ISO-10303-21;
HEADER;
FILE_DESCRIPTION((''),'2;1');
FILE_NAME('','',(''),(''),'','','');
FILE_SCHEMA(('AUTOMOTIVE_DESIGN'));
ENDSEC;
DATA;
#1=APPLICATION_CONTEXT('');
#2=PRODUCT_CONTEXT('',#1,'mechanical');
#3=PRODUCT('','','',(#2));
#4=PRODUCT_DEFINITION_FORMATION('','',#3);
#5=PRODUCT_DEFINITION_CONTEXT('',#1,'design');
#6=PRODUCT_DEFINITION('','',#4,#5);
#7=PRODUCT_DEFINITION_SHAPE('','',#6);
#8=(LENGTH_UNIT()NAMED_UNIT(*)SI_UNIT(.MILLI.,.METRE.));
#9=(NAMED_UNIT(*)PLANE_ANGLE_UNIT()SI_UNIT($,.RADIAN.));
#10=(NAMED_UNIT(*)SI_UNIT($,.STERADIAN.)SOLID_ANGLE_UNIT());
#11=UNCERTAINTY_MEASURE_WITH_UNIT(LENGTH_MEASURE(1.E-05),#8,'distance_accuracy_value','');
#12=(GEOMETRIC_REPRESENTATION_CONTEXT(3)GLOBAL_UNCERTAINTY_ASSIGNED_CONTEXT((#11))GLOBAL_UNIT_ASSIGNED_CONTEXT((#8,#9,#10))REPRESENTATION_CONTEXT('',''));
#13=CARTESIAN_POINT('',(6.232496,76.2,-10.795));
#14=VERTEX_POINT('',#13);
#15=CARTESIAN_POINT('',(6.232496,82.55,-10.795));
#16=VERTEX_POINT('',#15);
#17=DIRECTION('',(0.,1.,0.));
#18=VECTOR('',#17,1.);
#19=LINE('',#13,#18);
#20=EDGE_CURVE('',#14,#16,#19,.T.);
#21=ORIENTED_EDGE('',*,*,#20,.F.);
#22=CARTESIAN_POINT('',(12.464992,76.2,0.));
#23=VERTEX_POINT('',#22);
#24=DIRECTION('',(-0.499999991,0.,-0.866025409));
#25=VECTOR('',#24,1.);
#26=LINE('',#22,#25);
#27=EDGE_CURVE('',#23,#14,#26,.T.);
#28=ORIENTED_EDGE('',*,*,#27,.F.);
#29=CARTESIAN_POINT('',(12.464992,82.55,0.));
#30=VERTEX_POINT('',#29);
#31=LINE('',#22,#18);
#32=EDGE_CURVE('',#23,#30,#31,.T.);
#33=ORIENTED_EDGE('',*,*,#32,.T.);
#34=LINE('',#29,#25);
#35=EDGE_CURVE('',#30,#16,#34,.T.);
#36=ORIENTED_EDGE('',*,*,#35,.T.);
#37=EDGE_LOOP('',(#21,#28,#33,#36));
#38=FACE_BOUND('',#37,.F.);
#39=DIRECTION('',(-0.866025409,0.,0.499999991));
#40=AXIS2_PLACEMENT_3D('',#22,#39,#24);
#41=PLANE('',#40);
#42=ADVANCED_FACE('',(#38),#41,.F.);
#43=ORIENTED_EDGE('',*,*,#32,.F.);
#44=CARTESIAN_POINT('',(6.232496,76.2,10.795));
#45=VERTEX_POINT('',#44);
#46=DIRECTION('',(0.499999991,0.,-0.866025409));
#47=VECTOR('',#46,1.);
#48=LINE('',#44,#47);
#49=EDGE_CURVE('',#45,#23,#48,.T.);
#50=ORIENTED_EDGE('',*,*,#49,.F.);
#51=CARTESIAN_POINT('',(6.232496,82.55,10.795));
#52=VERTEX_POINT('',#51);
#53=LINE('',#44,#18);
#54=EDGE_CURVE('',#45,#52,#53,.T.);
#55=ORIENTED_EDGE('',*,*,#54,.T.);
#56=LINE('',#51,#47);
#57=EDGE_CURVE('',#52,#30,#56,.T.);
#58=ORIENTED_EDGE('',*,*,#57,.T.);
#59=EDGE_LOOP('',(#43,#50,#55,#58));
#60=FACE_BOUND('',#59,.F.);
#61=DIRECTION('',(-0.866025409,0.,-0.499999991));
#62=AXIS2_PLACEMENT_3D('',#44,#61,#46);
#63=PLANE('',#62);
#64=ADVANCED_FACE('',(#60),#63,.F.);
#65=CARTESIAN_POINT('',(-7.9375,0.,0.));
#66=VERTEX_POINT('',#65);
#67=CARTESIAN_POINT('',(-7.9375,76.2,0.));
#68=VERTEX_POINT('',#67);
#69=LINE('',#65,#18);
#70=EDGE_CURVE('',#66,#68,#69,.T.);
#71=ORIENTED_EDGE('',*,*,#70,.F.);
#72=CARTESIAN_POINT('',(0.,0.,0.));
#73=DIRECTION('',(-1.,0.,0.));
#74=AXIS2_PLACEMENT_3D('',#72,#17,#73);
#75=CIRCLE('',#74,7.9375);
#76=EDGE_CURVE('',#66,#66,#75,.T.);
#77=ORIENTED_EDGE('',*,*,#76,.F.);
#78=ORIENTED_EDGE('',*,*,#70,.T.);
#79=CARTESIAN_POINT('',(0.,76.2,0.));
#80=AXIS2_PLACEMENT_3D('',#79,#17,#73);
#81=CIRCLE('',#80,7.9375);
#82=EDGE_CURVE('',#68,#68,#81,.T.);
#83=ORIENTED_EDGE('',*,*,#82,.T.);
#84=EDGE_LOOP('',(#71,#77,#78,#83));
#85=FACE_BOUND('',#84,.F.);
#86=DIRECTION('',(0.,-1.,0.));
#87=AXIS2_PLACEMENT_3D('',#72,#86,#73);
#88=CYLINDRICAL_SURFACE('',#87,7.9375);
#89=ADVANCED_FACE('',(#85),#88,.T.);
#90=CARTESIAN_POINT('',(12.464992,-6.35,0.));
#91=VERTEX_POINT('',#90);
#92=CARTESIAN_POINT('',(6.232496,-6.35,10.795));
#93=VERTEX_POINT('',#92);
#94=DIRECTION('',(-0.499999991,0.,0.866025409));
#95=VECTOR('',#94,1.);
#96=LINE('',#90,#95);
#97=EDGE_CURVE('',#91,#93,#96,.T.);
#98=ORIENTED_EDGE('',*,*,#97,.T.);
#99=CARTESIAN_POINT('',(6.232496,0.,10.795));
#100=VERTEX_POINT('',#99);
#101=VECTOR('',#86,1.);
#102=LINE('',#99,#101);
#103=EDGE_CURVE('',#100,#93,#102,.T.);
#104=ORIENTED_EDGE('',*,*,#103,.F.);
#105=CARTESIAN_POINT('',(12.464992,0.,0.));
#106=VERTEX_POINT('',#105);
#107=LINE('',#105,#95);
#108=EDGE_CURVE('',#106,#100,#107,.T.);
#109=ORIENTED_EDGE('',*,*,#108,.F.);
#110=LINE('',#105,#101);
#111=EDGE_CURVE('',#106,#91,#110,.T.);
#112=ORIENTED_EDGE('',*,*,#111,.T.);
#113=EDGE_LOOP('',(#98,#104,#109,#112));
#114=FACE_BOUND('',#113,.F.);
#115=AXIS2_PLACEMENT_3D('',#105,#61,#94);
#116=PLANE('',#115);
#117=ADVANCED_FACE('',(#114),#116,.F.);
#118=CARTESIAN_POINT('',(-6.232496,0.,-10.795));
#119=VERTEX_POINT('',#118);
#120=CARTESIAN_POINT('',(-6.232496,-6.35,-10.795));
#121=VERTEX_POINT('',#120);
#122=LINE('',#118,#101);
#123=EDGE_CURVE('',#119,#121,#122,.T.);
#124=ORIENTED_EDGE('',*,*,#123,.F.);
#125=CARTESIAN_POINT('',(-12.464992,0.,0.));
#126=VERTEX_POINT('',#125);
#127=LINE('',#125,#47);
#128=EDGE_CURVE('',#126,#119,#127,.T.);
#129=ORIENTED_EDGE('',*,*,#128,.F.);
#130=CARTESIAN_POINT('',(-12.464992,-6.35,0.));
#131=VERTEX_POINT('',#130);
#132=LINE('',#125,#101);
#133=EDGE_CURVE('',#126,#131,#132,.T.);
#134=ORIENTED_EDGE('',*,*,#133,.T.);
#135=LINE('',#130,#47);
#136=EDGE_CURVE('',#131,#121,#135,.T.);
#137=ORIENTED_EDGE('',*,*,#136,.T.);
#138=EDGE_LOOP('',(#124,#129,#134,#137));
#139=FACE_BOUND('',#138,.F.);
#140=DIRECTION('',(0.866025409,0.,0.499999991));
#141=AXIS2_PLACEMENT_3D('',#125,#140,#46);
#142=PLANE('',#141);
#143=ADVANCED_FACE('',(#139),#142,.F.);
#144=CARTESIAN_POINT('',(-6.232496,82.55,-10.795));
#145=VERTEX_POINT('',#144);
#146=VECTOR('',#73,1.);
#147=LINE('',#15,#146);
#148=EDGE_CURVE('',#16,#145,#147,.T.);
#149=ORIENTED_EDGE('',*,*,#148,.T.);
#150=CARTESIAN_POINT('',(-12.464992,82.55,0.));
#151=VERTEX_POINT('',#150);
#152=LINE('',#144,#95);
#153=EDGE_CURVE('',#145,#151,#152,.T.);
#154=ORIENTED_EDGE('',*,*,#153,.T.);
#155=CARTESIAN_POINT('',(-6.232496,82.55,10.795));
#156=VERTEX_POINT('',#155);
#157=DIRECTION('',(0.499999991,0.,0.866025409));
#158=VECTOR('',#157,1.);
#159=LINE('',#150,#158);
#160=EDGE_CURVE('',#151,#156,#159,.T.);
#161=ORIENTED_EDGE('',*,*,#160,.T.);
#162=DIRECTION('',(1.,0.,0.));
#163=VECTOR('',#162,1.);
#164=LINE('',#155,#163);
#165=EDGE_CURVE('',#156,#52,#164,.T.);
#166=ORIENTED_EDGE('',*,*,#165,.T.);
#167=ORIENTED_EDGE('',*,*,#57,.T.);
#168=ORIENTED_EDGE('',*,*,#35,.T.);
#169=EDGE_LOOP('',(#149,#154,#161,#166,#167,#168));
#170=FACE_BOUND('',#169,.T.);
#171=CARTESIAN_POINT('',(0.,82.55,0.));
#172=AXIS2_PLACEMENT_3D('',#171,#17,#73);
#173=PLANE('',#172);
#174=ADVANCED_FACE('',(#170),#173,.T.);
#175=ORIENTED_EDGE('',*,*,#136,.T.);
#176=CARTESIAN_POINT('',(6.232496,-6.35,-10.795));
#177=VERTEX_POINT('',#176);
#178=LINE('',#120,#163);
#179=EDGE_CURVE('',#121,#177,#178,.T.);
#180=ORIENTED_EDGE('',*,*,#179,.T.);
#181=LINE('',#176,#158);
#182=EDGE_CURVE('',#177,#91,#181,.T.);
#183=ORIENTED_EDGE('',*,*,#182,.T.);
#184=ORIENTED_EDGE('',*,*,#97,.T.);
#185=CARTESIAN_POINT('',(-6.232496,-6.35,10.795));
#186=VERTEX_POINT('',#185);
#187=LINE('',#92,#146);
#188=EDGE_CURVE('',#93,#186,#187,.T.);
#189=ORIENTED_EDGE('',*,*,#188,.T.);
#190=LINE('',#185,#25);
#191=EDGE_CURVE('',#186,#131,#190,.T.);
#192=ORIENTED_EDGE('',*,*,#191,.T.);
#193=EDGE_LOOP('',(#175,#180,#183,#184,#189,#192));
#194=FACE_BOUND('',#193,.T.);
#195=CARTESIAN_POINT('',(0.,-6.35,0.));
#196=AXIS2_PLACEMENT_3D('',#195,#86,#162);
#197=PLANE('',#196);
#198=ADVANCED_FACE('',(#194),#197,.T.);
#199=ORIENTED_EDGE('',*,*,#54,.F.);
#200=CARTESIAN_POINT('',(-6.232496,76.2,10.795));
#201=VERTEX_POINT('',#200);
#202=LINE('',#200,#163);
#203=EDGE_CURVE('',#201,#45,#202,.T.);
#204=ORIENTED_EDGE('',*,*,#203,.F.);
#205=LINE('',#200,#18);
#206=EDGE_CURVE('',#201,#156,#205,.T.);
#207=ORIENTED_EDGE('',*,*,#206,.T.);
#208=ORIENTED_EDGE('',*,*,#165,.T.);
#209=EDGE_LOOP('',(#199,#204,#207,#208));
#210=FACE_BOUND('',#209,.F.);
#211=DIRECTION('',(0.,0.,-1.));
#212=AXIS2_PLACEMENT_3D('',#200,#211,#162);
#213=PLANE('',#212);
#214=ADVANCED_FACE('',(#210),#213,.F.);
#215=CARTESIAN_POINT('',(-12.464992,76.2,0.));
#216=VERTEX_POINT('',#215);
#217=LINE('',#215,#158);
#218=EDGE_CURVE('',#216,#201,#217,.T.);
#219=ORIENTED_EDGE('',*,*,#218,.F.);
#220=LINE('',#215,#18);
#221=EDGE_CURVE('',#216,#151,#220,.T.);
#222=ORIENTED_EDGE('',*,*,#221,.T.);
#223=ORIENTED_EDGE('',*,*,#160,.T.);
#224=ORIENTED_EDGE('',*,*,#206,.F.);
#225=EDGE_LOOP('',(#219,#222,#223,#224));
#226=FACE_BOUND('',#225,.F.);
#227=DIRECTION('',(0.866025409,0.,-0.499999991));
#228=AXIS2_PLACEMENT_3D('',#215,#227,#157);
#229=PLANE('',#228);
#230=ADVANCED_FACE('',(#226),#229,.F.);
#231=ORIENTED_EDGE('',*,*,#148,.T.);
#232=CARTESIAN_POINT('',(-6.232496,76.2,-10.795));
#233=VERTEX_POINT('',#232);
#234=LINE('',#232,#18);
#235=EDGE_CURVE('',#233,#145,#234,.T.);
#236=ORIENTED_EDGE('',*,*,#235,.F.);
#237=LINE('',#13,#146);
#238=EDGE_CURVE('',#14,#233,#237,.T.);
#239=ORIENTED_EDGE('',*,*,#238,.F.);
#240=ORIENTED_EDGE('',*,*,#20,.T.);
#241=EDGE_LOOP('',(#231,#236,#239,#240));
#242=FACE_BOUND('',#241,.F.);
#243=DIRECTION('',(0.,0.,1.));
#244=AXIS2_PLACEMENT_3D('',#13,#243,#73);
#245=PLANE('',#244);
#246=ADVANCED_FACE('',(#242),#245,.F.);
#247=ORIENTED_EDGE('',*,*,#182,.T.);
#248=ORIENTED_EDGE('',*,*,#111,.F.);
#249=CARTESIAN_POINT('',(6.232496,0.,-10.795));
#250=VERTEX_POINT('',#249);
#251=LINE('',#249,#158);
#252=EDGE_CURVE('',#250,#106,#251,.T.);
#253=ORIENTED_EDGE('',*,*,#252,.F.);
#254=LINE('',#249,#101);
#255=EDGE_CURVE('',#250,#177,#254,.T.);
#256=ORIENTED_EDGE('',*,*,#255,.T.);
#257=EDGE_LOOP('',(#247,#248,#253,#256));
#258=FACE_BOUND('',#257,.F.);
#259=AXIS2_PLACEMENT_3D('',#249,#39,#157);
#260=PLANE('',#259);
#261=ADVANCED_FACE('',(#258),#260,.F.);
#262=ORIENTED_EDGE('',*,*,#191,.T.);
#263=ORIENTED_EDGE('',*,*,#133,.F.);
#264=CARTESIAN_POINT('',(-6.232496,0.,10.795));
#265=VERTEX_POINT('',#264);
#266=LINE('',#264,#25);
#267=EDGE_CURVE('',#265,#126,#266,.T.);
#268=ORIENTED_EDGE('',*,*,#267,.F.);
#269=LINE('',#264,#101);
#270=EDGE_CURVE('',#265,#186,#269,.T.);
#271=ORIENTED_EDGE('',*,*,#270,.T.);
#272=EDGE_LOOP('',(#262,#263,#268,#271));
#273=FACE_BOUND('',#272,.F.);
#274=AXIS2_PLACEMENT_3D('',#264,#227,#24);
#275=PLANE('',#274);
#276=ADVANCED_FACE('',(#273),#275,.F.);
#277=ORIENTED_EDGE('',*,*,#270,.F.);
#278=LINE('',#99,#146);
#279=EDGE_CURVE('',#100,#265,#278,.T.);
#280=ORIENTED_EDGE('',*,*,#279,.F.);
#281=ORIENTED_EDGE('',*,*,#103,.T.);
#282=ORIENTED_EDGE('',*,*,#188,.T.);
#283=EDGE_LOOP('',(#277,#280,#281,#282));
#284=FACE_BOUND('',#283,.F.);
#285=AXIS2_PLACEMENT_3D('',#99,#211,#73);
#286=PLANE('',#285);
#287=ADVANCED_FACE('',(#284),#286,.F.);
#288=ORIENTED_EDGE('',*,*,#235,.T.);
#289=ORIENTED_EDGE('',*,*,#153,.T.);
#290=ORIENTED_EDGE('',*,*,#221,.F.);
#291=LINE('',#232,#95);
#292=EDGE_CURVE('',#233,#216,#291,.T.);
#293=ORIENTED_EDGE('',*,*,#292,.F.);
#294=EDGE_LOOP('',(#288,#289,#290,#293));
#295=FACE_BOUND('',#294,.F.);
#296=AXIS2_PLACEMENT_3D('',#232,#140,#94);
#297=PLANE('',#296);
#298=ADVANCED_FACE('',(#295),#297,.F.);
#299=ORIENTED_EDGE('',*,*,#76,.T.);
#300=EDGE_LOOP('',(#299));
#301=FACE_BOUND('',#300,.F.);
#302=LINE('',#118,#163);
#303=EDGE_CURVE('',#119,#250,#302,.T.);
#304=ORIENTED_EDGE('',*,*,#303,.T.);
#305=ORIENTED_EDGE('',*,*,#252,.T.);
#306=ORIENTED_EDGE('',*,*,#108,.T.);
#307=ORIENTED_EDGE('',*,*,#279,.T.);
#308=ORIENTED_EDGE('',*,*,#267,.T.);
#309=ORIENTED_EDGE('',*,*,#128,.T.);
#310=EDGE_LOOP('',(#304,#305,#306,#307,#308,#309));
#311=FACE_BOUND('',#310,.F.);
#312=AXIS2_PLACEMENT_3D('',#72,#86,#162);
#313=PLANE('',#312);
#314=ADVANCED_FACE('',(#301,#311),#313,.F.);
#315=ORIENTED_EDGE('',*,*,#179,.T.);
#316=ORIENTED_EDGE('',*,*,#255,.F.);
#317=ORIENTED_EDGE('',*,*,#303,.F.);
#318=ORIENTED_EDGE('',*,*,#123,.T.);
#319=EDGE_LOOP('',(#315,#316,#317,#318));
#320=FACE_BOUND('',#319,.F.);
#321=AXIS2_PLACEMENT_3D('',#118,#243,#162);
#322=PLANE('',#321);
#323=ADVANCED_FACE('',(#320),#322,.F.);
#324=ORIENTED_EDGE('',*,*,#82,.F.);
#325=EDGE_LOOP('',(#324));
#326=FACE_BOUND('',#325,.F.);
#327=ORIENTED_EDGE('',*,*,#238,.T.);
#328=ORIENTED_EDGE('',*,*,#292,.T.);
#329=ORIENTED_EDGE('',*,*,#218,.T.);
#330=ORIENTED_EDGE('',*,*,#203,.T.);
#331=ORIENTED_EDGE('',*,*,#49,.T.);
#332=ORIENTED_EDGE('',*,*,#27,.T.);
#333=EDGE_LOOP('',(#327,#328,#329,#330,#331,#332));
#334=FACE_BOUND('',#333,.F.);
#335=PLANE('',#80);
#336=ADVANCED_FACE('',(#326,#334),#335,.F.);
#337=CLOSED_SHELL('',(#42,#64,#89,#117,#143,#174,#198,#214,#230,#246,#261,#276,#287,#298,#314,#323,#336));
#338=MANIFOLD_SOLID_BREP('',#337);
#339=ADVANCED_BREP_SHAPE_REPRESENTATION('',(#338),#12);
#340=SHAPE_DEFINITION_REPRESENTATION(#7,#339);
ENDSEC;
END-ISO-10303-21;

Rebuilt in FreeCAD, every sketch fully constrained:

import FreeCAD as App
import Part
import Sketcher
from FreeCAD import Vector
Q = App.Units.Quantity

doc = App.newDocument("Part")
params = doc.addObject("Spreadsheet::Sheet", "Params")
for row, (alias, value) in enumerate([
    ("pad1_length", "0.25 in"),
    ("sketch2_diameter", "0.625 in"),
    ("pad2_length", "3 in"),
    ("pad3_length", "0.25 in"),
], start=1):
    params.set(f"A{row}", alias)
    params.set(f"B{row}", "=" + value)
    params.setAlias(f"B{row}", alias)

body = doc.addObject("PartDesign::Body", "Body")

sketch1 = doc.addObject("Sketcher::SketchObject", "Sketch")
body.addObject(sketch1)
sketch1.AttachmentSupport = (doc.XZ_Plane, [""])
sketch1.MapMode = "FlatFace"
sketch1.addGeometry(Part.LineSegment(Vector(12, 0, 0), Vector(6, 11, 0)), False)
sketch1.addGeometry(Part.LineSegment(Vector(6, 11, 0), Vector(-6, 11, 0)), False)
sketch1.addGeometry(Part.LineSegment(Vector(-6, 11, 0), Vector(-12, 0, 0)), False)
sketch1.addGeometry(Part.LineSegment(Vector(-12, 0, 0), Vector(-6, -11, 0)), False)
sketch1.addGeometry(Part.LineSegment(Vector(-6, -11, 0), Vector(6, -11, 0)), False)
sketch1.addGeometry(Part.LineSegment(Vector(6, -11, 0), Vector(12, 0, 0)), False)
sketch1.addConstraint(Sketcher.Constraint("Coincident", 0, 2, 1, 1))
sketch1.addConstraint(Sketcher.Constraint("Coincident", 1, 2, 2, 1))
sketch1.addConstraint(Sketcher.Constraint("Coincident", 2, 2, 3, 1))
sketch1.addConstraint(Sketcher.Constraint("Coincident", 3, 2, 4, 1))
sketch1.addConstraint(Sketcher.Constraint("Coincident", 4, 2, 5, 1))
sketch1.addConstraint(Sketcher.Constraint("Coincident", 5, 2, 0, 1))
sketch1.addConstraint(Sketcher.Constraint("Horizontal", 1))
sketch1.addConstraint(Sketcher.Constraint("Horizontal", 4))
sketch1.addConstraint(Sketcher.Constraint("Symmetric", 0, 2, 3, 2, -1, 1))
sketch1.addConstraint(Sketcher.Constraint("Symmetric", 2, 2, 5, 2, -1, 1))
sketch1.addConstraint(Sketcher.Constraint("PointOnObject", 2, 2, -1))
sketch1.addConstraint(Sketcher.Constraint("Parallel", 2, 5))
sketch1.addConstraint(Sketcher.Constraint("Vertical", 1, 2, 3, 2))
sketch1.addConstraint(Sketcher.Constraint("Angle", 0, Q("119.999999 deg")))
sketch1.addConstraint(Sketcher.Constraint("DistanceY", 3, 2, 1, 2, Q("0.85 in")))
sketch1.addConstraint(Sketcher.Constraint("DistanceX", 1, 2, 1, 1, 12.464992))
pad1 = doc.addObject("PartDesign::Pad", "Pad")
body.addObject(pad1)
pad1.Profile = sketch1
pad1.setExpression("Length", "Params.pad1_length")

sketch2 = doc.addObject("Sketcher::SketchObject", "Sketch001")
body.addObject(sketch2)
sketch2.AttachmentSupport = (doc.XZ_Plane, [""])
sketch2.MapMode = "FlatFace"
sketch2.addGeometry(Part.Circle(Vector(0, 0, 0), Vector(0, 0, 1), 8), False)
sketch2.addConstraint(Sketcher.Constraint("Coincident", 0, 3, -1, 1))
sketch2.addConstraint(Sketcher.Constraint("Diameter", 0, Q("0.625 in")))
sketch2.setExpression("Constraints[1]", "Params.sketch2_diameter")
pad2 = doc.addObject("PartDesign::Pad", "Pad001")
body.addObject(pad2)
pad2.Profile = sketch2
pad2.setExpression("Length", "Params.pad2_length")
pad2.Reversed = True

sketch3 = doc.addObject("Sketcher::SketchObject", "Sketch002")
body.addObject(sketch3)
sketch3.AttachmentSupport = (doc.XZ_Plane, [""])
sketch3.MapMode = "FlatFace"
sketch3.AttachmentOffset = App.Placement(Vector(0, 0, -3 * 25.4), App.Rotation())
sketch3.addGeometry(Part.LineSegment(Vector(-12, 0, 0), Vector(-6, 11, 0)), False)
sketch3.addGeometry(Part.LineSegment(Vector(-6, 11, 0), Vector(6, 11, 0)), False)
sketch3.addGeometry(Part.LineSegment(Vector(6, 11, 0), Vector(12, 0, 0)), False)
sketch3.addGeometry(Part.LineSegment(Vector(12, 0, 0), Vector(6, -11, 0)), False)
sketch3.addGeometry(Part.LineSegment(Vector(6, -11, 0), Vector(-6, -11, 0)), False)
sketch3.addGeometry(Part.LineSegment(Vector(-6, -11, 0), Vector(-12, 0, 0)), False)
sketch3.addConstraint(Sketcher.Constraint("Coincident", 0, 2, 1, 1))
sketch3.addConstraint(Sketcher.Constraint("Coincident", 1, 2, 2, 1))
sketch3.addConstraint(Sketcher.Constraint("Coincident", 2, 2, 3, 1))
sketch3.addConstraint(Sketcher.Constraint("Coincident", 3, 2, 4, 1))
sketch3.addConstraint(Sketcher.Constraint("Coincident", 4, 2, 5, 1))
sketch3.addConstraint(Sketcher.Constraint("Coincident", 5, 2, 0, 1))
sketch3.addConstraint(Sketcher.Constraint("Horizontal", 1))
sketch3.addConstraint(Sketcher.Constraint("Horizontal", 4))
sketch3.addConstraint(Sketcher.Constraint("Symmetric", 0, 2, 3, 2, -1, 1))
sketch3.addConstraint(Sketcher.Constraint("Symmetric", 2, 2, 5, 2, -1, 1))
sketch3.addConstraint(Sketcher.Constraint("PointOnObject", 2, 2, -1))
sketch3.addConstraint(Sketcher.Constraint("Parallel", 2, 5))
sketch3.addConstraint(Sketcher.Constraint("Vertical", 1, 2, 3, 2))
sketch3.addConstraint(Sketcher.Constraint("Angle", 0, Q("60.000001 deg")))
sketch3.addConstraint(Sketcher.Constraint("DistanceY", 3, 2, 1, 2, Q("0.85 in")))
sketch3.addConstraint(Sketcher.Constraint("DistanceX", 1, 1, 1, 2, 12.464992))
pad3 = doc.addObject("PartDesign::Pad", "Pad002")
body.addObject(pad3)
pad3.Profile = sketch3
pad3.setExpression("Length", "Params.pad3_length")
pad3.Reversed = True

doc.recompute()
